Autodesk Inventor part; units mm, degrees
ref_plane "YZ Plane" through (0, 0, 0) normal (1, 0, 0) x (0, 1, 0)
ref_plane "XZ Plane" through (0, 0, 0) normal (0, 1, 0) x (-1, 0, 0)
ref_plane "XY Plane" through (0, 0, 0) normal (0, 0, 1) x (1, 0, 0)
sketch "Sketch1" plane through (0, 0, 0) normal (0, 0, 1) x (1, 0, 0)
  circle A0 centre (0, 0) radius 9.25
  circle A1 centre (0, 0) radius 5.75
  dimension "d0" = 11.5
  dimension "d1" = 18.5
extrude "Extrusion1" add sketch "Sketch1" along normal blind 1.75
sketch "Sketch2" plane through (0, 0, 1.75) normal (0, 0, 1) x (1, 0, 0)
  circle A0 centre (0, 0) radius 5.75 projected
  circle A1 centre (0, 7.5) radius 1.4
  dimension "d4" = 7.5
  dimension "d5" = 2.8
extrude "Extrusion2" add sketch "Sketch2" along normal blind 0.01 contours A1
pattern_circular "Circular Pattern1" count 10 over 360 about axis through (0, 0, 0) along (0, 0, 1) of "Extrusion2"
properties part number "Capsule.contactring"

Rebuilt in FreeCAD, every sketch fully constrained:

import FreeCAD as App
import Part
import Sketcher
Q = App.Units.Quantity

doc = App.newDocument("Part")
params = doc.addObject("Spreadsheet::Sheet", "Params")
for row, (alias, value) in enumerate([
    ("sketch1_diameter", "18.5 mm"),
    ("sketch1_diameter2", "11.5 mm"),
    ("pad1_length", "1.75 mm"),
    ("sketch2_diameter", "2.8 mm"),
    ("pad2_length", "0.01 mm"),
], start=1):
    params.set(f"A{row}", alias)
    params.set(f"B{row}", "=" + value)
    params.setAlias(f"B{row}", alias)

body = doc.addObject("PartDesign::Body", "Body")

sketch1 = doc.addObject("Sketcher::SketchObject", "Sketch")
body.addObject(sketch1)
sketch1.AttachmentSupport = (doc.XY_Plane, [""])
sketch1.MapMode = "FlatFace"
sketch1.addGeometry(Part.Circle(App.Vector(0, 0, 0), App.Vector(0, 0, 1), 9), False)
sketch1.addGeometry(Part.Circle(App.Vector(0, 0, 0), App.Vector(0, 0, 1), 6), False)
sketch1.addConstraint(Sketcher.Constraint("Coincident", 0, 3, -1, 1))
sketch1.addConstraint(Sketcher.Constraint("Coincident", 1, 3, -1, 1))
sketch1.addConstraint(Sketcher.Constraint("Diameter", 0, Q("18.5 mm")))
sketch1.addConstraint(Sketcher.Constraint("Diameter", 1, Q("11.5 mm")))
sketch1.setExpression("Constraints[2]", "Params.sketch1_diameter")
sketch1.setExpression("Constraints[3]", "Params.sketch1_diameter2")
pad1 = doc.addObject("PartDesign::Pad", "Pad")
body.addObject(pad1)
pad1.Profile = sketch1
pad1.setExpression("Length", "Params.pad1_length")

sketch2 = doc.addObject("Sketcher::SketchObject", "Sketch001")
body.addObject(sketch2)
sketch2.AttachmentSupport = (doc.XY_Plane, [""])
sketch2.MapMode = "FlatFace"
sketch2.AttachmentOffset = App.Placement(App.Vector(0, 0, 1.75), App.Rotation())
sketch2.addGeometry(Part.Circle(App.Vector(0, 7.5, 0), App.Vector(0, 0, 1), 1.4), False)
sketch2.addConstraint(Sketcher.Constraint("PointOnObject", 0, 3, -2))
sketch2.addConstraint(Sketcher.Constraint("Diameter", 0, Q("2.8 mm")))
sketch2.addConstraint(Sketcher.Constraint("DistanceY", -1, 1, 0, 3, Q("7.5 mm")))
sketch2.setExpression("Constraints[1]", "Params.sketch2_diameter")
pad2 = doc.addObject("PartDesign::Pad", "Pad001")
body.addObject(pad2)
pad2.Profile = sketch2
pad2.setExpression("Length", "Params.pad2_length")
doc.recompute()

polarpattern = doc.addObject("PartDesign::PolarPattern", "PolarPattern")
body.addObject(polarpattern)
polarpattern.Originals = [pad2]
polarpattern.Axis = (doc.Z_Axis, [""])
polarpattern.Angle = 360
polarpattern.Occurrences = 10
body.Tip = polarpattern

doc.recompute()
